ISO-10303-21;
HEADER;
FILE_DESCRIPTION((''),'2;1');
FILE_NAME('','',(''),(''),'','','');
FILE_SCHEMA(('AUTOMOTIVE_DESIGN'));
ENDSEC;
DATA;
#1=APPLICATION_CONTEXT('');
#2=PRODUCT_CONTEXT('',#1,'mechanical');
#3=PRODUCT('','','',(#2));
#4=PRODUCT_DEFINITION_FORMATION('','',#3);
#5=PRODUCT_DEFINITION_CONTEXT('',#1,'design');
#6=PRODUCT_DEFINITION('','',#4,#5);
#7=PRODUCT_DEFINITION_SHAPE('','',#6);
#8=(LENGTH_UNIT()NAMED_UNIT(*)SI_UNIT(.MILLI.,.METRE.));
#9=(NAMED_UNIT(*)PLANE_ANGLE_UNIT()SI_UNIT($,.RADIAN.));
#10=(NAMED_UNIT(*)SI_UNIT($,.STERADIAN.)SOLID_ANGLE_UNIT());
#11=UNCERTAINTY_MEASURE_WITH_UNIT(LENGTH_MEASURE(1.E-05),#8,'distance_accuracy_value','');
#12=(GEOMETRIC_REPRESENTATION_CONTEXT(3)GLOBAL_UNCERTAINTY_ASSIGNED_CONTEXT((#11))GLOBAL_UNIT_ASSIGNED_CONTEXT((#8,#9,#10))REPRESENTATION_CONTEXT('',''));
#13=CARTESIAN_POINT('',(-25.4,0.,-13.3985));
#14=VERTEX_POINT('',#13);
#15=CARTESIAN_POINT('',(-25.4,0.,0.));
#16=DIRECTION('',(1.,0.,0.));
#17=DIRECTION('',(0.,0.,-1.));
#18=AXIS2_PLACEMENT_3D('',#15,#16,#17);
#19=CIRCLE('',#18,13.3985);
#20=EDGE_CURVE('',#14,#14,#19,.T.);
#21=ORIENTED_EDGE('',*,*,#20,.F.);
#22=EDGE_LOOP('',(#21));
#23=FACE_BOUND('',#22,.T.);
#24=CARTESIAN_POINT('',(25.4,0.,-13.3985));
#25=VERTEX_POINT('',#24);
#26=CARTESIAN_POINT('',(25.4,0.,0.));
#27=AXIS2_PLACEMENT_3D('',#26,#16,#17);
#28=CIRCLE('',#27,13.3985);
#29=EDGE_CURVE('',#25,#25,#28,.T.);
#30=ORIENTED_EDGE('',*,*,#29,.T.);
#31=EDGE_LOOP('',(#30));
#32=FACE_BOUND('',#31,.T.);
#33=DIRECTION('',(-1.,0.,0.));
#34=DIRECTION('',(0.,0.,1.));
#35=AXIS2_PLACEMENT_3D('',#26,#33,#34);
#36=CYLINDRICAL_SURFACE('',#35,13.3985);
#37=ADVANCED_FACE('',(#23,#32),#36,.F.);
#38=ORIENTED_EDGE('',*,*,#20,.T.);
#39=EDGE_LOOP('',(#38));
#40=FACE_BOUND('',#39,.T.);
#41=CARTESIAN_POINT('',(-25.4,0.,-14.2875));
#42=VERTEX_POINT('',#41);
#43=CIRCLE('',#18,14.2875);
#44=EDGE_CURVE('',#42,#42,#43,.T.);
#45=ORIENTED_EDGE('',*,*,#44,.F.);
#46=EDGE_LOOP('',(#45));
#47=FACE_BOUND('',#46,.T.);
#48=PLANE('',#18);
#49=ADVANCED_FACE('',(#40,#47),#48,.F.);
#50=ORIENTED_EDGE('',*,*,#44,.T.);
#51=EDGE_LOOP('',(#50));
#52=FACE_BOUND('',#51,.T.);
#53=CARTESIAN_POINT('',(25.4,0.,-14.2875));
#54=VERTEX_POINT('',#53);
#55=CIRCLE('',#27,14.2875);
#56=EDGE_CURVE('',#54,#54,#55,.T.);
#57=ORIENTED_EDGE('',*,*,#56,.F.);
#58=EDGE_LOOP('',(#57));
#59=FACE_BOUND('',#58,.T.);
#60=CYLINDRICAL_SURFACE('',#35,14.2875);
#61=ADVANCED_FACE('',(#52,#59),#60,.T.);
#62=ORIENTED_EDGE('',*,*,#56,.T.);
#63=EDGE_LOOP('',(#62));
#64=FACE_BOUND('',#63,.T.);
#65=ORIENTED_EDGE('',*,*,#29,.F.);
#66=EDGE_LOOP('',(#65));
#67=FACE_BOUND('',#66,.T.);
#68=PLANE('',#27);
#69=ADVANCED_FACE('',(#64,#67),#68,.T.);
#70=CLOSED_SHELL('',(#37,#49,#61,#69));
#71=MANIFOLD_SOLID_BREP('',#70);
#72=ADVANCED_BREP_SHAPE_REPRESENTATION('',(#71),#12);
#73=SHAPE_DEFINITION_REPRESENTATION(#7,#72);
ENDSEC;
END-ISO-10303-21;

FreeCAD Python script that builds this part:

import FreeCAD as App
import Part
import Sketcher
from FreeCAD import Vector
Q = App.Units.Quantity

doc = App.newDocument("Part")
body = doc.addObject("PartDesign::Body", "Body")

# Sketch on YZ plane
sketch1 = doc.addObject("Sketcher::SketchObject", "Sketch")
body.addObject(sketch1)
sketch1.AttachmentSupport = (doc.YZ_Plane, [""])
sketch1.MapMode = "FlatFace"
sketch1.addGeometry([
    Part.Circle(Vector(0, 0, 0), Vector(0, 0, 1), 14),
    Part.Circle(Vector(0, 0, 0), Vector(0, 0, 1), 13),
], False)
sketch1.addConstraint([
    Sketcher.Constraint("Coincident", 0, 3, -1, 1),
    Sketcher.Constraint("Coincident", 1, 3, -1, 1),
    Sketcher.Constraint("Diameter", 0, Q("1.125 in")),
    Sketcher.Constraint("Diameter", 1, Q("1.055 in")),
])
pad1 = doc.addObject("PartDesign::Pad", "Pad")
body.addObject(pad1)
pad1.Profile = sketch1
pad1.Length = Q("2 in")
pad1.Midplane = True

doc.recompute()
